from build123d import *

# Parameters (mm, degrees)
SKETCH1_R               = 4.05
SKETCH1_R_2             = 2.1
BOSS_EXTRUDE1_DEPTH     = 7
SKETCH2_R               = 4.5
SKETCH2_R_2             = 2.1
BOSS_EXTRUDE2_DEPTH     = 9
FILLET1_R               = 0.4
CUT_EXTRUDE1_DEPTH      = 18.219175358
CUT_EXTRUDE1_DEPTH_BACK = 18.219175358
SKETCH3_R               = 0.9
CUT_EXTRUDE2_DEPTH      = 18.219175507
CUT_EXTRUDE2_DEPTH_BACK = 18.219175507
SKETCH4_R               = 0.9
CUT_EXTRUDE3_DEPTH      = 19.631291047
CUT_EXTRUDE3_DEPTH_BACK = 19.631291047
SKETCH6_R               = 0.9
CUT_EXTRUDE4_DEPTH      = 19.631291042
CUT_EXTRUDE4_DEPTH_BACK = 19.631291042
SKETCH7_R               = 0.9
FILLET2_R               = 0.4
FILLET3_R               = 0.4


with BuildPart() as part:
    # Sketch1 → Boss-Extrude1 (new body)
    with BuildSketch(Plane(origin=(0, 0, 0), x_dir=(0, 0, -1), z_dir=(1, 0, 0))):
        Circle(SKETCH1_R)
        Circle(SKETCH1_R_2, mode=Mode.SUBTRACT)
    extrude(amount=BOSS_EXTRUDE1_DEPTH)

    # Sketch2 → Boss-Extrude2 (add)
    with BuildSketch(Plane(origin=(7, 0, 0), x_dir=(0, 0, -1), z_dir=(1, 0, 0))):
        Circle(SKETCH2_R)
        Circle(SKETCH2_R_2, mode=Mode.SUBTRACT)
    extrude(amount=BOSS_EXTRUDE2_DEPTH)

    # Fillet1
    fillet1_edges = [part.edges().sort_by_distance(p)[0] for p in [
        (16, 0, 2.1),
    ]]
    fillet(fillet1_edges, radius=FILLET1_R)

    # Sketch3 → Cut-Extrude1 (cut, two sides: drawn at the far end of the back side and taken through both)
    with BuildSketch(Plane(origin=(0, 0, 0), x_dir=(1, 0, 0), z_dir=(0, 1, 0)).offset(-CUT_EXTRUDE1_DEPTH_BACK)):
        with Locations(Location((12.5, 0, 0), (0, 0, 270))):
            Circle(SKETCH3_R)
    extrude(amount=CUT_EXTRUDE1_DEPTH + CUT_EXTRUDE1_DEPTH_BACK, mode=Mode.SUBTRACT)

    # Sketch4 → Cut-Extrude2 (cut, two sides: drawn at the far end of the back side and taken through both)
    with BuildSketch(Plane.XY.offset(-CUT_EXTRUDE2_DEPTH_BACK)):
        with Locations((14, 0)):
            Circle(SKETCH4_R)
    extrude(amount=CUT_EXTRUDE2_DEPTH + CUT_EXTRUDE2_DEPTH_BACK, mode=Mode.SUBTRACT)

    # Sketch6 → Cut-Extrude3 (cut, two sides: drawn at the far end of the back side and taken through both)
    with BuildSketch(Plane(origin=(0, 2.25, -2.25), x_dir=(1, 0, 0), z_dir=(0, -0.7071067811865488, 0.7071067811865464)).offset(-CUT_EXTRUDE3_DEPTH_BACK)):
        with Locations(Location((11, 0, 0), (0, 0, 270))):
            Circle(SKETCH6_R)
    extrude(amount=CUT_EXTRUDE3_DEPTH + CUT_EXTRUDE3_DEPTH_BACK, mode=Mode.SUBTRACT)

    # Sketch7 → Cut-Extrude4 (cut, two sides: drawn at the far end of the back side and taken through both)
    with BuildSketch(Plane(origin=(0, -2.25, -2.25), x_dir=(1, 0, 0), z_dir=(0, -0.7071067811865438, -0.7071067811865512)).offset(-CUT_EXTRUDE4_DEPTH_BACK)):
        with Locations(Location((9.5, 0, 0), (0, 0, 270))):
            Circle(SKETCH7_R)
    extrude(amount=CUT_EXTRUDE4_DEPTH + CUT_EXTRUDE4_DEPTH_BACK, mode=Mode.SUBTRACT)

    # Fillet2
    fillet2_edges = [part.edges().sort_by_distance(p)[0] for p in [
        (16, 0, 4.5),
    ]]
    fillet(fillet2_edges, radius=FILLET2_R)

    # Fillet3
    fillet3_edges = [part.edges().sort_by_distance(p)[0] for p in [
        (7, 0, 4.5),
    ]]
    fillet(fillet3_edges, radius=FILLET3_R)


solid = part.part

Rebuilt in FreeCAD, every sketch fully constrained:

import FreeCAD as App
import Part
import Sketcher

V = App.Vector
Q = App.Units.Quantity


def edges_at(feature, points):
    """Names of the edges that pass closest to the given points."""
    edges = feature.Shape.Edges
    near = lambda p: min(range(len(edges)), key=lambda i: edges[i].distToShape(Part.Vertex(*p))[0])
    return sorted({f"Edge{near(p) + 1}" for p in points})

doc = App.newDocument("Part")
body = doc.addObject("PartDesign::Body", "Body")

sketch1 = doc.addObject("Sketcher::SketchObject", "Sketch")
body.addObject(sketch1)
sketch1.AttachmentSupport = (doc.YZ_Plane, [""])
sketch1.MapMode = "FlatFace"
sketch1.addGeometry(Part.Circle(V(0, 0, 0), V(0, 0, 1), 4), False)
sketch1.addGeometry(Part.Circle(V(0, 0, 0), V(0, 0, 1), 2.1), False)
sketch1.addConstraint(Sketcher.Constraint("Coincident", 0, 3, -1, 1))
sketch1.addConstraint(Sketcher.Constraint("Coincident", 1, 3, -1, 1))
sketch1.addConstraint(Sketcher.Constraint("Diameter", 0, Q("8.1 mm")))
sketch1.addConstraint(Sketcher.Constraint("Diameter", 1, Q("4.2 mm")))
pad1 = doc.addObject("PartDesign::Pad", "Pad")
body.addObject(pad1)
pad1.Profile = sketch1
pad1.Length = 7

sketch2 = doc.addObject("Sketcher::SketchObject", "Sketch001")
body.addObject(sketch2)
sketch2.AttachmentSupport = (doc.YZ_Plane, [""])
sketch2.MapMode = "FlatFace"
sketch2.AttachmentOffset = App.Placement(V(0, 0, 7), App.Rotation())
sketch2.addGeometry(Part.Circle(V(0, 0, 0), V(0, 0, 1), 4.5), False)
sketch2.addGeometry(Part.Circle(V(0, 0, 0), V(0, 0, 1), 2.1), False)
sketch2.addConstraint(Sketcher.Constraint("Coincident", 0, 3, -1, 1))
sketch2.addConstraint(Sketcher.Constraint("Coincident", 1, 3, -1, 1))
sketch2.addConstraint(Sketcher.Constraint("Diameter", 0, Q("9 mm")))
sketch2.addConstraint(Sketcher.Constraint("Diameter", 1, Q("4.2 mm")))
pad2 = doc.addObject("PartDesign::Pad", "Pad001")
body.addObject(pad2)
pad2.Profile = sketch2
pad2.Length = 9
doc.recompute()

fillet = doc.addObject("PartDesign::Fillet", "Fillet")
body.addObject(fillet)
fillet.Base = (pad2, edges_at(pad2, [(16, 0, 2.1)]))
fillet.Radius = 0.4

sketch3 = doc.addObject("Sketcher::SketchObject", "Sketch002")
body.addObject(sketch3)
sketch3.AttachmentSupport = (doc.XZ_Plane, [""])
sketch3.MapMode = "FlatFace"
sketch3.addGeometry(Part.Circle(V(12.5, 0, 0), V(0, 0, 1), 0.9), False)
sketch3.addConstraint(Sketcher.Constraint("PointOnObject", 0, 3, -1))
sketch3.addConstraint(Sketcher.Constraint("Diameter", 0, Q("1.8 mm")))
sketch3.addConstraint(Sketcher.Constraint("DistanceX", -1, 1, 0, 3, Q("12.5 mm")))
pocket1 = doc.addObject("PartDesign::Pocket", "Pocket")
body.addObject(pocket1)
pocket1.Profile = sketch3
pocket1.Type = "ThroughAll"
pocket1.Midplane = True

sketch4 = doc.addObject("Sketcher::SketchObject", "Sketch003")
body.addObject(sketch4)
sketch4.AttachmentSupport = (doc.XY_Plane, [""])
sketch4.MapMode = "FlatFace"
sketch4.addGeometry(Part.Circle(V(14, 0, 0), V(0, 0, 1), 0.9), False)
sketch4.addConstraint(Sketcher.Constraint("PointOnObject", 0, 3, -1))
sketch4.addConstraint(Sketcher.Constraint("Diameter", 0, Q("1.8 mm")))
sketch4.addConstraint(Sketcher.Constraint("DistanceX", -1, 1, 0, 3, Q("14 mm")))
pocket2 = doc.addObject("PartDesign::Pocket", "Pocket001")
body.addObject(pocket2)
pocket2.Profile = sketch4
pocket2.Type = "ThroughAll"
pocket2.Midplane = True

sketch5 = doc.addObject("Sketcher::SketchObject", "Sketch004")
body.addObject(sketch5)
sketch5.Placement = App.Placement(V(0, 2.25, -2.25), App.Rotation(V(1, 0, 0), V(0, 0.707106781, 0.707106781), V(0, -0.707106781, 0.707106781), "ZXY"))
sketch5.addGeometry(Part.Circle(V(11, 0, 0), V(0, 0, 1), 0.9), False)
sketch5.addConstraint(Sketcher.Constraint("PointOnObject", 0, 3, -1))
sketch5.addConstraint(Sketcher.Constraint("Diameter", 0, Q("1.8 mm")))
sketch5.addConstraint(Sketcher.Constraint("DistanceX", -1, 1, 0, 3, Q("11 mm")))
pocket3 = doc.addObject("PartDesign::Pocket", "Pocket002")
body.addObject(pocket3)
pocket3.Profile = sketch5
pocket3.Type = "ThroughAll"
pocket3.Midplane = True

sketch6 = doc.addObject("Sketcher::SketchObject", "Sketch005")
body.addObject(sketch6)
sketch6.Placement = App.Placement(V(0, -2.25, -2.25), App.Rotation(V(1, 0, 0), V(0, -0.707106781, 0.707106781), V(0, -0.707106781, -0.707106781), "ZXY"))
sketch6.addGeometry(Part.Circle(V(9.5, 0, 0), V(0, 0, 1), 0.9), False)
sketch6.addConstraint(Sketcher.Constraint("PointOnObject", 0, 3, -1))
sketch6.addConstraint(Sketcher.Constraint("Diameter", 0, Q("1.8 mm")))
sketch6.addConstraint(Sketcher.Constraint("DistanceX", -1, 1, 0, 3, Q("9.5 mm")))
pocket4 = doc.addObject("PartDesign::Pocket", "Pocket003")
body.addObject(pocket4)
pocket4.Profile = sketch6
pocket4.Type = "ThroughAll"
pocket4.Midplane = True
doc.recompute()

fillet2 = doc.addObject("PartDesign::Fillet", "Fillet001")
body.addObject(fillet2)
fillet2.Base = (pocket4, edges_at(pocket4, [(16, 0, 4.5)]))
fillet2.Radius = 0.4
doc.recompute()

fillet3 = doc.addObject("PartDesign::Fillet", "Fillet002")
body.addObject(fillet3)
fillet3.Base = (fillet2, edges_at(fillet2, [(7, 0, 4.5)]))
fillet3.Radius = 0.4

doc.recompute()
